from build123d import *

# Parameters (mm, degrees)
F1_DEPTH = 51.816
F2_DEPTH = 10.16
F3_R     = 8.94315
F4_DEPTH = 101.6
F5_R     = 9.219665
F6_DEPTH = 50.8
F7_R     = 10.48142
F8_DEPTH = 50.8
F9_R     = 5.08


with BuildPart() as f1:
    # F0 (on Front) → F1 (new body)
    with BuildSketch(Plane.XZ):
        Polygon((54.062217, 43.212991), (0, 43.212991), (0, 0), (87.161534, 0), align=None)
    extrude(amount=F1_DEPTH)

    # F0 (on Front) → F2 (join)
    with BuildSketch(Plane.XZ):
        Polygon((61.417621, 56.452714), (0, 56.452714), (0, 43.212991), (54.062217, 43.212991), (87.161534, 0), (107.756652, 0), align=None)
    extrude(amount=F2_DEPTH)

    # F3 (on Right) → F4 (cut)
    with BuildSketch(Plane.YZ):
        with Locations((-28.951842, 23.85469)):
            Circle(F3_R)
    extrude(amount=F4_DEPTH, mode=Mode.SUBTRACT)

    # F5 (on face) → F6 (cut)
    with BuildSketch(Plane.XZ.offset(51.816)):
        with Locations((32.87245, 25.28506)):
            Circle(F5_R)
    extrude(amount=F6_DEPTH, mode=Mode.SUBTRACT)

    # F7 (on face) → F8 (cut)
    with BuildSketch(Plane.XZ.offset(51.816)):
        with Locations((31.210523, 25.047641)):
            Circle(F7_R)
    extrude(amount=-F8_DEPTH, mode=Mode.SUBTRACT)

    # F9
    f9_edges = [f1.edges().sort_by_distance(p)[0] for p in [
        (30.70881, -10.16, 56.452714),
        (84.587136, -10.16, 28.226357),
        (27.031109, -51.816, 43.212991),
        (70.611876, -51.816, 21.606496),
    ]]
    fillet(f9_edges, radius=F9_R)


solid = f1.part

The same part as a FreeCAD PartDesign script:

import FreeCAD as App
import Part
import Sketcher


def edges_at(feature, points):
    """Names of the edges that pass closest to the given points."""
    edges = feature.Shape.Edges
    near = lambda p: min(range(len(edges)), key=lambda i: edges[i].distToShape(Part.Vertex(*p))[0])
    return sorted({f"Edge{near(p) + 1}" for p in points})


def add_polygon(sketch, points):
    """Adds a closed chain of lines whose ends are joined by coincident constraints."""
    first, n = sketch.GeometryCount, len(points)
    for a, b in zip(points, points[1:] + points[:1]):
        sketch.addGeometry(Part.LineSegment(App.Vector(*a, 0), App.Vector(*b, 0)), False)
    for i in range(n):
        sketch.addConstraint(Sketcher.Constraint("Coincident", first + i, 2, first + (i + 1) % n, 1))

doc = App.newDocument("Part")
params = doc.addObject("Spreadsheet::Sheet", "Params")
for row, (alias, value) in enumerate([
    ("pad1_length", "2.04 in"),
    ("pad2_length", "0.4 in"),
    ("pocket1_length", "4 in"),
    ("pocket2_length", "2 in"),
    ("pocket3_length", "2 in"),
    ("fillet_radius", "0.2 in"),
], start=1):
    params.set(f"A{row}", alias)
    params.set(f"B{row}", "=" + value)
    params.setAlias(f"B{row}", alias)

body = doc.addObject("PartDesign::Body", "Body")

# Sketch on XZ plane
sketch1 = body.newObject("Sketcher::SketchObject", "Sketch")
sketch1.AttachmentSupport = (doc.getObject("XZ_Plane"), [""])
sketch1.MapMode = "FlatFace"
add_polygon(sketch1, [(54, 43), (0, 43), (0, 0), (87, 0)])  # lines 0-3
sketch1.addConstraint([
    Sketcher.Constraint("Horizontal", 0),
    Sketcher.Constraint("Vertical", 1),
    Sketcher.Constraint("Horizontal", 2),
    Sketcher.Constraint("Coincident", 1, 2, -1, 1),
    Sketcher.Constraint("DistanceY", 1, 2, 1, 1, 43.212991),
    Sketcher.Constraint("Distance", 3, 54.432779),
    Sketcher.Constraint("DistanceX", 0, 2, 0, 1, 54.062217),
])
pad1 = body.newObject("PartDesign::Pad", "Pad")
pad1.Profile = sketch1
pad1.setExpression("Length", "Params.pad1_length")

# Sketch on XZ plane
sketch2 = body.newObject("Sketcher::SketchObject", "Sketch001")
sketch2.AttachmentSupport = (doc.getObject("XZ_Plane"), [""])
sketch2.MapMode = "FlatFace"
add_polygon(sketch2, [(61.417621, 56.452714), (0, 56.452714), (0, 43.212991), (54.062217, 43.212991), (87.161534, 0), (107.756652, 0)])  # lines 0-5
sketch2.addConstraint([
    Sketcher.Constraint("Horizontal", 0),
    Sketcher.Constraint("Vertical", 1),
    Sketcher.Constraint("Horizontal", 2),
    Sketcher.Constraint("Horizontal", 4),
    Sketcher.Constraint("PointOnObject", 0, 2, -2),
    Sketcher.Constraint("PointOnObject", 3, 2, -1),
    Sketcher.Constraint("DistanceX", 0, 2, 0, 1, 61.417621),
    Sketcher.Constraint("Distance", 3, 54.432779),
    Sketcher.Constraint("Distance", 5, 73.035708),
    Sketcher.Constraint("DistanceX", 2, 1, 2, 2, 54.062217),
    Sketcher.Constraint("DistanceX", 4, 1, 4, 2, 20.595118),
    Sketcher.Constraint("DistanceY", 1, 2, 1, 1, 13.239723),
])
pad2 = body.newObject("PartDesign::Pad", "Pad001")
pad2.Profile = sketch2
pad2.setExpression("Length", "Params.pad2_length")

# Sketch on YZ plane
sketch3 = body.newObject("Sketcher::SketchObject", "Sketch002")
sketch3.AttachmentSupport = (doc.getObject("YZ_Plane"), [""])
sketch3.MapMode = "FlatFace"
sketch3.addGeometry(Part.Circle(App.Vector(-29, 24, 0), App.Vector(0, 0, 1), 9), False)
sketch3.addConstraint([
    Sketcher.Constraint("Diameter", 0, 17.8863),
    Sketcher.Constraint("DistanceX", 0, 3, -1, 1, 28.951842),
    Sketcher.Constraint("DistanceY", -1, 1, 0, 3, 23.85469),
])
pocket1 = body.newObject("PartDesign::Pocket", "Pocket")
pocket1.Profile = sketch3
pocket1.setExpression("Length", "Params.pocket1_length")
pocket1.Reversed = True

# Sketch on XZ plane
sketch4 = body.newObject("Sketcher::SketchObject", "Sketch003")
sketch4.AttachmentSupport = (doc.getObject("XZ_Plane"), [""])
sketch4.MapMode = "FlatFace"
sketch4.AttachmentOffset = App.Placement(App.Vector(0, 0, 2.04 * 25.4), App.Rotation())
sketch4.addGeometry(Part.Circle(App.Vector(33, 25, 0), App.Vector(0, 0, 1), 9), False)
sketch4.addConstraint([
    Sketcher.Constraint("Diameter", 0, 18.43933),
    Sketcher.Constraint("DistanceX", -1, 1, 0, 3, 32.87245),
    Sketcher.Constraint("DistanceY", -1, 1, 0, 3, 25.28506),
])
pocket2 = body.newObject("PartDesign::Pocket", "Pocket001")
pocket2.Profile = sketch4
pocket2.setExpression("Length", "Params.pocket2_length")
pocket2.Reversed = True

# Sketch on XZ plane
sketch5 = body.newObject("Sketcher::SketchObject", "Sketch004")
sketch5.AttachmentSupport = (doc.getObject("XZ_Plane"), [""])
sketch5.MapMode = "FlatFace"
sketch5.AttachmentOffset = App.Placement(App.Vector(0, 0, 2.04 * 25.4), App.Rotation())
sketch5.addGeometry(Part.Circle(App.Vector(31, 25, 0), App.Vector(0, 0, 1), 10), False)
sketch5.addConstraint([
    Sketcher.Constraint("Diameter", 0, 20.96284),
    Sketcher.Constraint("DistanceY", -1, 1, 0, 3, 25.047641),
    Sketcher.Constraint("DistanceX", -1, 1, 0, 3, 31.210523),
])
pocket3 = body.newObject("PartDesign::Pocket", "Pocket002")
pocket3.Profile = sketch5
pocket3.setExpression("Length", "Params.pocket3_length")
doc.recompute()

fillet = body.newObject("PartDesign::Fillet", "Fillet")
fillet.Base = (pocket3, edges_at(pocket3, [
    (30.709, -10.16, 56.453),
    (84.587, -10.16, 28.226),
    (27.031, -51.816, 43.213),
    (70.612, -51.816, 21.606),
]))
fillet.setExpression("Radius", "Params.fillet_radius")

doc.recompute()
